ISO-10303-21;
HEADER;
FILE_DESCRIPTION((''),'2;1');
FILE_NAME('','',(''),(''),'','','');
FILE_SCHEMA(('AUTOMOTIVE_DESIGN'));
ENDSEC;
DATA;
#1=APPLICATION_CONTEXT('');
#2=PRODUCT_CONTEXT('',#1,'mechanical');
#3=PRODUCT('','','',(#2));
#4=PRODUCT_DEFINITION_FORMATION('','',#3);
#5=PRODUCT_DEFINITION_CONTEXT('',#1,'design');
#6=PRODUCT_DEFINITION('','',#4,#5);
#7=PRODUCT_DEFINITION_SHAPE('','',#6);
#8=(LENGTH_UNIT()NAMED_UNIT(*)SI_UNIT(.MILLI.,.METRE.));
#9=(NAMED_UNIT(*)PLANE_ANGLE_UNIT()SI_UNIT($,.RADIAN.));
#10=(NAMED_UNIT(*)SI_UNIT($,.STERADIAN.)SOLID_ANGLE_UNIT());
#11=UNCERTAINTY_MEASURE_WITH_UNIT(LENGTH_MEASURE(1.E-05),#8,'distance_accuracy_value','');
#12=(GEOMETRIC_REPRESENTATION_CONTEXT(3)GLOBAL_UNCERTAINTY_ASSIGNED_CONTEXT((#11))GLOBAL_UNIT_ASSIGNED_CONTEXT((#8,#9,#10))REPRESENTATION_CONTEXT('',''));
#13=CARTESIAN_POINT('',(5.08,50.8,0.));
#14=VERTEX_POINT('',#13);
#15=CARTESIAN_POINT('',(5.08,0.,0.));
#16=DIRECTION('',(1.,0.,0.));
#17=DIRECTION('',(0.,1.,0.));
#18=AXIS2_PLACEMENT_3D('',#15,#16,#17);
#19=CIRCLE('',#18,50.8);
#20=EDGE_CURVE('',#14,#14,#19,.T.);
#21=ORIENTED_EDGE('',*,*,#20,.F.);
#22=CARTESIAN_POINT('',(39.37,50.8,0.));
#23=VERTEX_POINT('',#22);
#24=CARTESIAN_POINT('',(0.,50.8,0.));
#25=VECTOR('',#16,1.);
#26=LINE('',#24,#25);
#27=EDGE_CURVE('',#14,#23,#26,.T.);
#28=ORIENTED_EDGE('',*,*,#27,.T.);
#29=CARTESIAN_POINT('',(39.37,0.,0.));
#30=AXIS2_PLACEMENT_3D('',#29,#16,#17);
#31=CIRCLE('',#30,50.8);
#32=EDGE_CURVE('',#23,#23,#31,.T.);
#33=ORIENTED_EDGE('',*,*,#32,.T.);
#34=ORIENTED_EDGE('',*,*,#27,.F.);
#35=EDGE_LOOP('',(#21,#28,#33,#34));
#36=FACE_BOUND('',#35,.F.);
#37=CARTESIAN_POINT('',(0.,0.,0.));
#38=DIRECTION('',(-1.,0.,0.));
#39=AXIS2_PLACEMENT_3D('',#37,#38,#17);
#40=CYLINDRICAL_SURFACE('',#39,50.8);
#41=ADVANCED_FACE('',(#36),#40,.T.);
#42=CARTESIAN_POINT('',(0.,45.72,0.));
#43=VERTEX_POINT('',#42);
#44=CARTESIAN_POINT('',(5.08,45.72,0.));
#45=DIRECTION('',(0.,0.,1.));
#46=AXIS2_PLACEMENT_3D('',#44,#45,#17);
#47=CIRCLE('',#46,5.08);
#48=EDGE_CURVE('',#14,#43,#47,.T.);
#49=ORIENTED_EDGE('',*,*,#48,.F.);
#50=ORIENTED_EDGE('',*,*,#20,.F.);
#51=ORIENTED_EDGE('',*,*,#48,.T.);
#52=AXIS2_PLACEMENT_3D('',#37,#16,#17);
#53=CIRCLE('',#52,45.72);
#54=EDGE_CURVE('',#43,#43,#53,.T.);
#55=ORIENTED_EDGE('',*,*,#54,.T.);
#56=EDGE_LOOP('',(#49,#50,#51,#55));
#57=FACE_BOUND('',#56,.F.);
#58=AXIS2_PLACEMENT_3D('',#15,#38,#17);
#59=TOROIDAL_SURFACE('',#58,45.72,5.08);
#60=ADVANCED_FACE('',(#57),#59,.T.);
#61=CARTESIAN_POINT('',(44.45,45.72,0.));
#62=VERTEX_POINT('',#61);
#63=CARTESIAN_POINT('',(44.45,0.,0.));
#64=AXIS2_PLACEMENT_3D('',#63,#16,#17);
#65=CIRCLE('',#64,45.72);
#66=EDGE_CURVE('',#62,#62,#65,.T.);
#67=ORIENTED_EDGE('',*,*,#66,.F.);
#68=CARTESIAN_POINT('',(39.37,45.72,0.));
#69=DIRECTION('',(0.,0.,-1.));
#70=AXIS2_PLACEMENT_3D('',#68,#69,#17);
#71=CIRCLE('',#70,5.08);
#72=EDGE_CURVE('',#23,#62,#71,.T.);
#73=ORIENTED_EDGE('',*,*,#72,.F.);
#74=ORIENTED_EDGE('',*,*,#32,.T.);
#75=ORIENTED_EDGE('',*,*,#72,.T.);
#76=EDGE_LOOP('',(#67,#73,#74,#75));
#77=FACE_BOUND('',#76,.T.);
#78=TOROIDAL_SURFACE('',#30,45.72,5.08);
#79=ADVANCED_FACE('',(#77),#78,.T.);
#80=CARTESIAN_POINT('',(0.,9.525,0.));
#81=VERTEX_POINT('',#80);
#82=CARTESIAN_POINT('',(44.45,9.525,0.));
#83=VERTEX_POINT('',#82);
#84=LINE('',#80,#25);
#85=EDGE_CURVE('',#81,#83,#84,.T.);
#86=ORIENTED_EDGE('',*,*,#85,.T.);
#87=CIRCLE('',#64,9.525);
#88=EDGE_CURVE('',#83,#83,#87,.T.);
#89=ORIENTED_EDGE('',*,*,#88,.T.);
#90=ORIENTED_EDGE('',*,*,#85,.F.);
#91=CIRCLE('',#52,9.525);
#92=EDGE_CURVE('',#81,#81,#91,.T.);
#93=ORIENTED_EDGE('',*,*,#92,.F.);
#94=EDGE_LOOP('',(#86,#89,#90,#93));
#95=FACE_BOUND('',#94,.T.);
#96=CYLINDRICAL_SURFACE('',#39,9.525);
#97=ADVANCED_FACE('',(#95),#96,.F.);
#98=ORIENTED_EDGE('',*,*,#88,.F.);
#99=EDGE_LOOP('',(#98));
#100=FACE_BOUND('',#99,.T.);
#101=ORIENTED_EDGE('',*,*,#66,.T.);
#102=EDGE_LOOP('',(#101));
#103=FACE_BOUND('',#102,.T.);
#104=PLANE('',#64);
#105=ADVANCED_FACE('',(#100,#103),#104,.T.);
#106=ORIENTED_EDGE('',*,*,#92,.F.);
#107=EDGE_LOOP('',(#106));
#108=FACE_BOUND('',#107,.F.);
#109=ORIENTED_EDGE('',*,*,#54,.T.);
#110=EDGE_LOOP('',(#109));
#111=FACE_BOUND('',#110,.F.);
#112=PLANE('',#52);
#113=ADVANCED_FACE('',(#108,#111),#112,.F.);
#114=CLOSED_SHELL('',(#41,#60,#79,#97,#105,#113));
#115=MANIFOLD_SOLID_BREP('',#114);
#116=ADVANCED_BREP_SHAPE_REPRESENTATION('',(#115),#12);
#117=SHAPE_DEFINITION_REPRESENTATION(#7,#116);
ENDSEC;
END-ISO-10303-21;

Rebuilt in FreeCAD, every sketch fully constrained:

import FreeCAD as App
import Part
import Sketcher
from FreeCAD import Vector
Q = App.Units.Quantity


def edges_at(feature, points):
    """Names of the edges that pass closest to the given points."""
    edges = feature.Shape.Edges
    near = lambda p: min(range(len(edges)), key=lambda i: edges[i].distToShape(Part.Vertex(*p))[0])
    return sorted({f"Edge{near(p) + 1}" for p in points})

doc = App.newDocument("Part")
body = doc.addObject("PartDesign::Body", "Body")

sketch1 = body.newObject("Sketcher::SketchObject", "Sketch")
sketch1.AttachmentSupport = (doc.getObject("YZ_Plane"), [""])
sketch1.MapMode = "FlatFace"
sketch1.addGeometry([
    Part.Circle(Vector(0, 0, 0), Vector(0, 0, 1), 50.8),
    Part.Circle(Vector(0, 0, 0), Vector(0, 0, 1), 9.525),
], False)
sketch1.addConstraint([
    Sketcher.Constraint("Coincident", 0, 3, -1, 1),
    Sketcher.Constraint("Coincident", 1, 3, -1, 1),
    Sketcher.Constraint("Diameter", 0, Q("4 in")),
    Sketcher.Constraint("Diameter", 1, Q("0.75 in")),
])
pad1 = body.newObject("PartDesign::Pad", "Pad")
pad1.Profile = sketch1
pad1.Length = Q("1.75 in")
doc.recompute()

fillet = body.newObject("PartDesign::Fillet", "Fillet")
fillet.Base = (pad1, edges_at(pad1, [(44.45, -50.8, 0)]))
fillet.Radius = Q("0.2 in")
doc.recompute()

fillet2 = body.newObject("PartDesign::Fillet", "Fillet001")
fillet2.Base = (fillet, edges_at(fillet, [(0, -50.8, 0)]))
fillet2.Radius = Q("0.2 in")

doc.recompute()
